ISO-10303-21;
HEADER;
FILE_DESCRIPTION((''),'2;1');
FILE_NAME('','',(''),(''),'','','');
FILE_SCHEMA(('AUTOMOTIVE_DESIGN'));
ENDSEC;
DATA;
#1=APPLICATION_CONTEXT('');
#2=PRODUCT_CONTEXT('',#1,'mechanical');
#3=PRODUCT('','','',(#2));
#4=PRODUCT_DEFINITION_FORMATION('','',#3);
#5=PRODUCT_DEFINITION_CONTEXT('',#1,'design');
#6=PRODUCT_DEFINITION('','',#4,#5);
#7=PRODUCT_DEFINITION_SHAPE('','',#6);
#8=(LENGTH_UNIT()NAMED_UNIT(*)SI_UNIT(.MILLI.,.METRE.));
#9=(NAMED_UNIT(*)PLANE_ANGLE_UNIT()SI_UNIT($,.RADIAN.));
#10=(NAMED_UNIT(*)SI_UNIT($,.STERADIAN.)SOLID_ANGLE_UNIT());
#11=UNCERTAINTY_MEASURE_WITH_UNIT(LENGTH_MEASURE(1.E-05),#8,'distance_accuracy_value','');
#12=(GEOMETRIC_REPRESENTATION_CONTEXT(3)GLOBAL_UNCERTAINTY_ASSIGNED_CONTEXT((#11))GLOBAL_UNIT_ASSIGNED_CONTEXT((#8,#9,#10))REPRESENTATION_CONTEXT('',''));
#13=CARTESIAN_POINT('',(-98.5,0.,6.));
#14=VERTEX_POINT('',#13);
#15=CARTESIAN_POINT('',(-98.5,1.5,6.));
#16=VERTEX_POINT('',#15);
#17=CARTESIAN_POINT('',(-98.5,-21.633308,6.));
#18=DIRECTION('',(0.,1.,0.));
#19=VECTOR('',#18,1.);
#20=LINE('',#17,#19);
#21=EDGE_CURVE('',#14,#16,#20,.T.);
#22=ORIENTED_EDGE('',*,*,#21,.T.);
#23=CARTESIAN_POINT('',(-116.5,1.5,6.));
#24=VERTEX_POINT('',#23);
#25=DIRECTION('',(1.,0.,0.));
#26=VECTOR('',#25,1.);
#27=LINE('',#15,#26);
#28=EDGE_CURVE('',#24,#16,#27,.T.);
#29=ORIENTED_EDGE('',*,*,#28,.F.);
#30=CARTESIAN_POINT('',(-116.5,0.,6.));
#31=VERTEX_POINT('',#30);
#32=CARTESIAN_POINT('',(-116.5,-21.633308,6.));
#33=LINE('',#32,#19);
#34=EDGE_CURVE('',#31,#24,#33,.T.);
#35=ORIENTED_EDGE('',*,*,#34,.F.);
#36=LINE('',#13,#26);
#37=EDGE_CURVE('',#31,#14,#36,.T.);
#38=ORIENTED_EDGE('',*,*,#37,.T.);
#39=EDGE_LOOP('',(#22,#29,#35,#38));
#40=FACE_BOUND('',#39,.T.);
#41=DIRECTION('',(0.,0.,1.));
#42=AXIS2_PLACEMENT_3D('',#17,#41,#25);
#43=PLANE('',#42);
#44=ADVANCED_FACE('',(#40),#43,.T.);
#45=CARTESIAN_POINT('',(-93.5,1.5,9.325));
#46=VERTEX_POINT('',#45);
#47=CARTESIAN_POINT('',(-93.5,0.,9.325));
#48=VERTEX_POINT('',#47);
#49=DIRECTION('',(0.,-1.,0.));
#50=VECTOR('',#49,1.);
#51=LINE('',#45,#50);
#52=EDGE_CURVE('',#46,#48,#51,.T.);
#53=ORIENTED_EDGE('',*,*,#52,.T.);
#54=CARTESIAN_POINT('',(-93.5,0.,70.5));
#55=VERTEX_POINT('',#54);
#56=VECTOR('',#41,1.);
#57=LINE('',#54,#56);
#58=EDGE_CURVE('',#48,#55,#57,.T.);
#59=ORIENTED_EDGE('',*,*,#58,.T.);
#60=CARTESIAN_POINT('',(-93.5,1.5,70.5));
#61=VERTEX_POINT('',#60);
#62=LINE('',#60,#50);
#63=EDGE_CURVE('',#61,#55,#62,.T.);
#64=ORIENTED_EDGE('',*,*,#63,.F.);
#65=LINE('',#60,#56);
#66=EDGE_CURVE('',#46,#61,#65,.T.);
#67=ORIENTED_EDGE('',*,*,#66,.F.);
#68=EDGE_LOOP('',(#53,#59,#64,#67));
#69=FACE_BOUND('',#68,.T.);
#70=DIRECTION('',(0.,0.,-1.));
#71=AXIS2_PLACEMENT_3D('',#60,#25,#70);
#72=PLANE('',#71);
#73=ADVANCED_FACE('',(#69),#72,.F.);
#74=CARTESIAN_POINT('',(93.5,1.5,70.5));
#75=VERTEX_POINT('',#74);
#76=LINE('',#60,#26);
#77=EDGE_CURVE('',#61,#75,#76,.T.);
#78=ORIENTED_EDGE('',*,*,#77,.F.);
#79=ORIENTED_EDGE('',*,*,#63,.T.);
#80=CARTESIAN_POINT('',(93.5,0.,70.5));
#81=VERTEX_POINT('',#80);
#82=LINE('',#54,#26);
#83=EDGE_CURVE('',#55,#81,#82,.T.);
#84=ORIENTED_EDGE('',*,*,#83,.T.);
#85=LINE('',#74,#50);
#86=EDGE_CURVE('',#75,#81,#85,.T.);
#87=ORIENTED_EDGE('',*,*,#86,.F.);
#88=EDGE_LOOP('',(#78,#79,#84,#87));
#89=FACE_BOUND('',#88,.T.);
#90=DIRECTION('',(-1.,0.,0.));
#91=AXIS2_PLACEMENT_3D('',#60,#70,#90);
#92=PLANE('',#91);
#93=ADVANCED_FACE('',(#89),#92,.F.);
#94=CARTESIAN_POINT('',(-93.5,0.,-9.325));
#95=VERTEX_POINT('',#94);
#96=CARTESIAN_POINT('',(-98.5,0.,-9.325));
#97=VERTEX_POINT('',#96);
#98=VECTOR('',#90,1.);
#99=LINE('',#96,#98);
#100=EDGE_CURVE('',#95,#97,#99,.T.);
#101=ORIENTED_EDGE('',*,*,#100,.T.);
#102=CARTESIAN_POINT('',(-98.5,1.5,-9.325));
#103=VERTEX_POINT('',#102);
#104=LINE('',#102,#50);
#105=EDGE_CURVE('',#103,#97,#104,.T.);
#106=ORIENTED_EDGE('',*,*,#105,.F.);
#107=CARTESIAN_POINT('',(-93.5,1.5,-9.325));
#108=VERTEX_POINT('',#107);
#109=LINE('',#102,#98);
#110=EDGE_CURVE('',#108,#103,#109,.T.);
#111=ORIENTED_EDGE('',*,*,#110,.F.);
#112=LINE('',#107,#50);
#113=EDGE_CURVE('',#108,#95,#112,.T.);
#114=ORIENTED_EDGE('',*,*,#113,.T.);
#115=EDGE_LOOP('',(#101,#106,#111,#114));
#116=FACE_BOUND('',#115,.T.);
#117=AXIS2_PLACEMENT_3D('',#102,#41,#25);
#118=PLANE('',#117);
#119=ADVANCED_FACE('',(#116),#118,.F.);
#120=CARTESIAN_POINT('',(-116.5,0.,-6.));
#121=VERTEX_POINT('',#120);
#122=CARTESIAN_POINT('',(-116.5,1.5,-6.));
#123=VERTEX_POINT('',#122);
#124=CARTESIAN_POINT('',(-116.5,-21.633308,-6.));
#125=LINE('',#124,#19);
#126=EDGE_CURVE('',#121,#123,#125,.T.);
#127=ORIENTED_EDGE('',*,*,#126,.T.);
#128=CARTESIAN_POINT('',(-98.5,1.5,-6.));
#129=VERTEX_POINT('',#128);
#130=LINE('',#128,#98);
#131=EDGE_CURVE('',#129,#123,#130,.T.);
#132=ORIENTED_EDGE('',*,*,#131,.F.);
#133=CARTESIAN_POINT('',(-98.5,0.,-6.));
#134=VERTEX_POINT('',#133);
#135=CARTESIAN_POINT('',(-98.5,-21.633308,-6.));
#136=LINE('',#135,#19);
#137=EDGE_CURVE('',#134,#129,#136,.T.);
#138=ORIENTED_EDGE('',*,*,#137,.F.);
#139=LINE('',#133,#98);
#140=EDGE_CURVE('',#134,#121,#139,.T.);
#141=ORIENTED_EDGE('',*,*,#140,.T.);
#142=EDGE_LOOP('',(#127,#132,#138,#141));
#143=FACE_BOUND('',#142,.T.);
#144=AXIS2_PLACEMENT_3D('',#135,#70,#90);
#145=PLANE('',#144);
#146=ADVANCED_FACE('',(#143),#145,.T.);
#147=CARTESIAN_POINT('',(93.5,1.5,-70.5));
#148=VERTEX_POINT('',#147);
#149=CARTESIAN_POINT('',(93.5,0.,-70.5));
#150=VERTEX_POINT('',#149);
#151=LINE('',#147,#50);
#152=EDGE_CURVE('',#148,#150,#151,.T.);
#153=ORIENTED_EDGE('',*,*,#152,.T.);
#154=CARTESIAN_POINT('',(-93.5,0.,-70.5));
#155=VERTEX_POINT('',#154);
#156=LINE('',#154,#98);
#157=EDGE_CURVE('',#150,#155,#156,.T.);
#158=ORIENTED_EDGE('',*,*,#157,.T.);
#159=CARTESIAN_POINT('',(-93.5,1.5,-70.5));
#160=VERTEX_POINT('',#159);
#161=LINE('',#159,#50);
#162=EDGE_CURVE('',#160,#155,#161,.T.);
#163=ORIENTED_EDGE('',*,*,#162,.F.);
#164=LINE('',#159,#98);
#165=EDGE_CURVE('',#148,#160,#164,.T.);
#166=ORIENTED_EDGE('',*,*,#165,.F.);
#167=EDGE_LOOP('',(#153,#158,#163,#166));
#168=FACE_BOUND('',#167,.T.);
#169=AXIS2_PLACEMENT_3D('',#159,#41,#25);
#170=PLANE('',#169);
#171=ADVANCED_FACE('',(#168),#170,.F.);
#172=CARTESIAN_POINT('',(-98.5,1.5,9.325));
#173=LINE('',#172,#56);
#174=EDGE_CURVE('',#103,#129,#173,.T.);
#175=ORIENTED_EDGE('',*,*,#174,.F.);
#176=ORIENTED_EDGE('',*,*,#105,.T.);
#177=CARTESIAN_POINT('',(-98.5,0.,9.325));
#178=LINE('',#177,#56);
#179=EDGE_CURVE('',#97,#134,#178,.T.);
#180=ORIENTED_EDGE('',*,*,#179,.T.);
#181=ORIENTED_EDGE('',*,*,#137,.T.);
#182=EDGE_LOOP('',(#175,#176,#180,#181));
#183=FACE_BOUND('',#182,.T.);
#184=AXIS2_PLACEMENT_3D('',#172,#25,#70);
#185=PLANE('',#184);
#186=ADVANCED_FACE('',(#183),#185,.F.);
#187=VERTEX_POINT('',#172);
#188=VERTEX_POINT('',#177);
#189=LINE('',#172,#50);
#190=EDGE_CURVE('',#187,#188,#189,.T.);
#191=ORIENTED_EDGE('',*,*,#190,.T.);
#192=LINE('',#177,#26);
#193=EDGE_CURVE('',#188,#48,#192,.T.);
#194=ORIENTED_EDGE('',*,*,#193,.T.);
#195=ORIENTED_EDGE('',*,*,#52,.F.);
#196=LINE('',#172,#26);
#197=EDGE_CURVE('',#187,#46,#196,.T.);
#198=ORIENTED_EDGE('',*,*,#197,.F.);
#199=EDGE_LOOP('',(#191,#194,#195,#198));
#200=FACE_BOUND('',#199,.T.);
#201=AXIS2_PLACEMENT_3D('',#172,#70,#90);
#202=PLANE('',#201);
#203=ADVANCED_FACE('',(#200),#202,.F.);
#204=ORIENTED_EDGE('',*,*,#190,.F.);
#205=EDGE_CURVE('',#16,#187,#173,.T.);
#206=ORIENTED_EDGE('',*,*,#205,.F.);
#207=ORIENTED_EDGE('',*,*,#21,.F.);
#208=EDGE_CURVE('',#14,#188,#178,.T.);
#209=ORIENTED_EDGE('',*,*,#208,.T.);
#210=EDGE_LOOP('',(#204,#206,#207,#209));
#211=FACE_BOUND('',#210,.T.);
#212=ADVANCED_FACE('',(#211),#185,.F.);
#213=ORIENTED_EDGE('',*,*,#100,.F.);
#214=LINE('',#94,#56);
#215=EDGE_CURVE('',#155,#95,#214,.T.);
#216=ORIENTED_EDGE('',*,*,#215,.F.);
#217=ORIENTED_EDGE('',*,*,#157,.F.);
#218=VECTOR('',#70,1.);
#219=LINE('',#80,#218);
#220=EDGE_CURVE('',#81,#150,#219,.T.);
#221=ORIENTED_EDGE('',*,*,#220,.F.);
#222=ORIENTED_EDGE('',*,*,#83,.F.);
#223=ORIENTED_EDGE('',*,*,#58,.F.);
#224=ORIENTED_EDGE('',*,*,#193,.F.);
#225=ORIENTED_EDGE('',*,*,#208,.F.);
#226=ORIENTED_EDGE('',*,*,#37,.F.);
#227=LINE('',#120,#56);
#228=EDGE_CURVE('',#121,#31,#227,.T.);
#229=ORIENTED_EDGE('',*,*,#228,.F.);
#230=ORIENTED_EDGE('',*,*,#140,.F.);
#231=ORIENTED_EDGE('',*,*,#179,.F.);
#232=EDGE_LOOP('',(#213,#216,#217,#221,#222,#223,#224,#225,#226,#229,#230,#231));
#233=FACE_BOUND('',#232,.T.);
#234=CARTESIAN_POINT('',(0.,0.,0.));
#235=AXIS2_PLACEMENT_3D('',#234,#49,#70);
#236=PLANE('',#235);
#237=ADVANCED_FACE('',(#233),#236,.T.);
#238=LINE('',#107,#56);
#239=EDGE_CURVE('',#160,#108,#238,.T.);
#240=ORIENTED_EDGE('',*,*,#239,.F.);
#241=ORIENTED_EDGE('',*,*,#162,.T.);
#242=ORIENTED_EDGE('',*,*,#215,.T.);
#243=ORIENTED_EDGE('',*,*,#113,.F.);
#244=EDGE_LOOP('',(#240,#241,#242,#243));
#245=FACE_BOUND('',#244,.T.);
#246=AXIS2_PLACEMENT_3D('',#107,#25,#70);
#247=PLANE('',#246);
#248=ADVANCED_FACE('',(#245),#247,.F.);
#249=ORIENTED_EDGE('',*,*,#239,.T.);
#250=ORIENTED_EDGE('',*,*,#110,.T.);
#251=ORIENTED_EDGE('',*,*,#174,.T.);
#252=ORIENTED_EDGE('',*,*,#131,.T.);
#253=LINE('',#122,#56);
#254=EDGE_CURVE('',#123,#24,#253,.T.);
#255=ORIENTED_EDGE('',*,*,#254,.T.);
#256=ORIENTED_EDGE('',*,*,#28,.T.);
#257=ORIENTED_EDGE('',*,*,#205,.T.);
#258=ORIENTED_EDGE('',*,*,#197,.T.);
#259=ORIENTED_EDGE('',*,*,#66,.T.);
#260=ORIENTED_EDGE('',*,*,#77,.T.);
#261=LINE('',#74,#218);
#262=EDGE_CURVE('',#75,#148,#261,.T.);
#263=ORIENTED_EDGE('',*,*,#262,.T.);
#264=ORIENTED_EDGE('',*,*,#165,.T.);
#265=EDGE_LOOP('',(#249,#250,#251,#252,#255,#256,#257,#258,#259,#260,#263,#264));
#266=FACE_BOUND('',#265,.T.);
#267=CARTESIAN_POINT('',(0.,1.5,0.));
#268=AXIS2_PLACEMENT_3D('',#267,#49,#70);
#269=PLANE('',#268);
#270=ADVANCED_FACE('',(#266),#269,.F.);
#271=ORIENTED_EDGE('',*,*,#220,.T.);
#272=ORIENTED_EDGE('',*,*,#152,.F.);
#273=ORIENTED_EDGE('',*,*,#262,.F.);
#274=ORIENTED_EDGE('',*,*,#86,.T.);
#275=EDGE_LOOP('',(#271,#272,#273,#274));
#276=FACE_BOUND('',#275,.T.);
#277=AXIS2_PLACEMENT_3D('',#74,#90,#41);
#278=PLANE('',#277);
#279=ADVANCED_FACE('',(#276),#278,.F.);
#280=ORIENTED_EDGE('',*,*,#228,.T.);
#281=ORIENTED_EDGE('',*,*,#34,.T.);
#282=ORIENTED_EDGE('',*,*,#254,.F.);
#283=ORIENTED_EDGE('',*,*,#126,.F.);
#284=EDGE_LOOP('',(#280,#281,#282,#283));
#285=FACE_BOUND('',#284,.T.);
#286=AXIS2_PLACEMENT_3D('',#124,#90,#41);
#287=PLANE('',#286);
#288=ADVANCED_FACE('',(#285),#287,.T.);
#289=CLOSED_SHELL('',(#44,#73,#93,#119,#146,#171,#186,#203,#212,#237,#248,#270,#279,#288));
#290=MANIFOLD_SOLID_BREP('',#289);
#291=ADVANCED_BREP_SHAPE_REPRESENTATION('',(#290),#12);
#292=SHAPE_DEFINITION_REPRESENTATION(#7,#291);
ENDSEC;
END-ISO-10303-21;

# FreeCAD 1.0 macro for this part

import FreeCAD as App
import Part
import Sketcher

V = App.Vector

doc = App.newDocument("Part")
body = doc.addObject("PartDesign::Body", "Body")

# Sketch on XZ plane
sketch1 = body.newObject("Sketcher::SketchObject", "Sketch")
sketch1.AttachmentSupport = (doc.getObject("XZ_Plane"), [""])
sketch1.MapMode = "FlatFace"
sketch1.addGeometry(Part.LineSegment(V(-94, -70, 0), V(-94, -9, 0)), False)
sketch1.addGeometry(Part.LineSegment(V(-94, -9, 0), V(-98, -9, 0)), False)
sketch1.addGeometry(Part.LineSegment(V(-98, -9, 0), V(-98, 9, 0)), False)
sketch1.addGeometry(Part.LineSegment(V(-98, 9, 0), V(-94, 9, 0)), False)
sketch1.addGeometry(Part.LineSegment(V(-94, 9, 0), V(-94, 70, 0)), False)
sketch1.addGeometry(Part.LineSegment(V(-94, 70, 0), V(94, 70, 0)), False)
sketch1.addGeometry(Part.LineSegment(V(94, 70, 0), V(94, -70, 0)), False)
sketch1.addGeometry(Part.LineSegment(V(94, -70, 0), V(-94, -70, 0)), False)
sketch1.addConstraint(Sketcher.Constraint("Coincident", 0, 2, 1, 1))
sketch1.addConstraint(Sketcher.Constraint("Coincident", 1, 2, 2, 1))
sketch1.addConstraint(Sketcher.Constraint("Coincident", 2, 2, 3, 1))
sketch1.addConstraint(Sketcher.Constraint("Coincident", 3, 2, 4, 1))
sketch1.addConstraint(Sketcher.Constraint("Coincident", 4, 2, 5, 1))
sketch1.addConstraint(Sketcher.Constraint("Coincident", 5, 2, 6, 1))
sketch1.addConstraint(Sketcher.Constraint("Coincident", 6, 2, 7, 1))
sketch1.addConstraint(Sketcher.Constraint("Coincident", 7, 2, 0, 1))
sketch1.addConstraint(Sketcher.Constraint("Vertical", 0))
sketch1.addConstraint(Sketcher.Constraint("Horizontal", 1))
sketch1.addConstraint(Sketcher.Constraint("Vertical", 2))
sketch1.addConstraint(Sketcher.Constraint("Horizontal", 3))
sketch1.addConstraint(Sketcher.Constraint("Vertical", 4))
sketch1.addConstraint(Sketcher.Constraint("Horizontal", 5))
sketch1.addConstraint(Sketcher.Constraint("Vertical", 6))
sketch1.addConstraint(Sketcher.Constraint("Horizontal", 7))
sketch1.addConstraint(Sketcher.Constraint("Symmetric", 4, 2, 6, 2, -1, 1))
sketch1.addConstraint(Sketcher.Constraint("Symmetric", 0, 2, 3, 2, -1))
sketch1.addConstraint(Sketcher.Constraint("DistanceX", 1, 2, 1, 1, 5.0))
sketch1.addConstraint(Sketcher.Constraint("DistanceX", 5, 1, 5, 2, 187.0))
sketch1.addConstraint(Sketcher.Constraint("DistanceY", 6, 2, 6, 1, 141.0))
sketch1.addConstraint(Sketcher.Constraint("DistanceY", 2, 1, 2, 2, 18.65))
pad1 = body.newObject("PartDesign::Pad", "Pad")
pad1.Profile = sketch1
pad1.Length = 1.5
pad1.Reversed = True

# Sketch on XZ plane
sketch2 = body.newObject("Sketcher::SketchObject", "Sketch001")
sketch2.AttachmentSupport = (doc.getObject("XZ_Plane"), [""])
sketch2.MapMode = "FlatFace"
sketch2.AttachmentOffset = App.Placement(V(0, 0, -1.5), App.Rotation())
sketch2.addGeometry(Part.LineSegment(V(-116, -6, 0), V(-116, 6, 0)), False)
sketch2.addGeometry(Part.LineSegment(V(-116, 6, 0), V(-98, 6, 0)), False)
sketch2.addGeometry(Part.LineSegment(V(-98, 6, 0), V(-98, -6, 0)), False)
sketch2.addGeometry(Part.LineSegment(V(-98, -6, 0), V(-116, -6, 0)), False)
sketch2.addConstraint(Sketcher.Constraint("Coincident", 0, 2, 1, 1))
sketch2.addConstraint(Sketcher.Constraint("Coincident", 1, 2, 2, 1))
sketch2.addConstraint(Sketcher.Constraint("Coincident", 2, 2, 3, 1))
sketch2.addConstraint(Sketcher.Constraint("Coincident", 3, 2, 0, 1))
sketch2.addConstraint(Sketcher.Constraint("Vertical", 0))
sketch2.addConstraint(Sketcher.Constraint("Horizontal", 1))
sketch2.addConstraint(Sketcher.Constraint("Vertical", 2))
sketch2.addConstraint(Sketcher.Constraint("Horizontal", 3))
sketch2.addConstraint(Sketcher.Constraint("DistanceX", 1, 1, 1, 2, 18.0))
sketch2.addConstraint(Sketcher.Constraint("DistanceY", 0, 1, 0, 2, 12.0))
sketch2.addConstraint(Sketcher.Constraint("DistanceY", -1, 1, 0, 2, 6.0))
sketch2.addConstraint(Sketcher.Constraint("DistanceX", 0, 2, -1, 1, 116.5))
pad2 = body.newObject("PartDesign::Pad", "Pad001")
pad2.Profile = sketch2
pad2.Length = 1.5

doc.recompute()
